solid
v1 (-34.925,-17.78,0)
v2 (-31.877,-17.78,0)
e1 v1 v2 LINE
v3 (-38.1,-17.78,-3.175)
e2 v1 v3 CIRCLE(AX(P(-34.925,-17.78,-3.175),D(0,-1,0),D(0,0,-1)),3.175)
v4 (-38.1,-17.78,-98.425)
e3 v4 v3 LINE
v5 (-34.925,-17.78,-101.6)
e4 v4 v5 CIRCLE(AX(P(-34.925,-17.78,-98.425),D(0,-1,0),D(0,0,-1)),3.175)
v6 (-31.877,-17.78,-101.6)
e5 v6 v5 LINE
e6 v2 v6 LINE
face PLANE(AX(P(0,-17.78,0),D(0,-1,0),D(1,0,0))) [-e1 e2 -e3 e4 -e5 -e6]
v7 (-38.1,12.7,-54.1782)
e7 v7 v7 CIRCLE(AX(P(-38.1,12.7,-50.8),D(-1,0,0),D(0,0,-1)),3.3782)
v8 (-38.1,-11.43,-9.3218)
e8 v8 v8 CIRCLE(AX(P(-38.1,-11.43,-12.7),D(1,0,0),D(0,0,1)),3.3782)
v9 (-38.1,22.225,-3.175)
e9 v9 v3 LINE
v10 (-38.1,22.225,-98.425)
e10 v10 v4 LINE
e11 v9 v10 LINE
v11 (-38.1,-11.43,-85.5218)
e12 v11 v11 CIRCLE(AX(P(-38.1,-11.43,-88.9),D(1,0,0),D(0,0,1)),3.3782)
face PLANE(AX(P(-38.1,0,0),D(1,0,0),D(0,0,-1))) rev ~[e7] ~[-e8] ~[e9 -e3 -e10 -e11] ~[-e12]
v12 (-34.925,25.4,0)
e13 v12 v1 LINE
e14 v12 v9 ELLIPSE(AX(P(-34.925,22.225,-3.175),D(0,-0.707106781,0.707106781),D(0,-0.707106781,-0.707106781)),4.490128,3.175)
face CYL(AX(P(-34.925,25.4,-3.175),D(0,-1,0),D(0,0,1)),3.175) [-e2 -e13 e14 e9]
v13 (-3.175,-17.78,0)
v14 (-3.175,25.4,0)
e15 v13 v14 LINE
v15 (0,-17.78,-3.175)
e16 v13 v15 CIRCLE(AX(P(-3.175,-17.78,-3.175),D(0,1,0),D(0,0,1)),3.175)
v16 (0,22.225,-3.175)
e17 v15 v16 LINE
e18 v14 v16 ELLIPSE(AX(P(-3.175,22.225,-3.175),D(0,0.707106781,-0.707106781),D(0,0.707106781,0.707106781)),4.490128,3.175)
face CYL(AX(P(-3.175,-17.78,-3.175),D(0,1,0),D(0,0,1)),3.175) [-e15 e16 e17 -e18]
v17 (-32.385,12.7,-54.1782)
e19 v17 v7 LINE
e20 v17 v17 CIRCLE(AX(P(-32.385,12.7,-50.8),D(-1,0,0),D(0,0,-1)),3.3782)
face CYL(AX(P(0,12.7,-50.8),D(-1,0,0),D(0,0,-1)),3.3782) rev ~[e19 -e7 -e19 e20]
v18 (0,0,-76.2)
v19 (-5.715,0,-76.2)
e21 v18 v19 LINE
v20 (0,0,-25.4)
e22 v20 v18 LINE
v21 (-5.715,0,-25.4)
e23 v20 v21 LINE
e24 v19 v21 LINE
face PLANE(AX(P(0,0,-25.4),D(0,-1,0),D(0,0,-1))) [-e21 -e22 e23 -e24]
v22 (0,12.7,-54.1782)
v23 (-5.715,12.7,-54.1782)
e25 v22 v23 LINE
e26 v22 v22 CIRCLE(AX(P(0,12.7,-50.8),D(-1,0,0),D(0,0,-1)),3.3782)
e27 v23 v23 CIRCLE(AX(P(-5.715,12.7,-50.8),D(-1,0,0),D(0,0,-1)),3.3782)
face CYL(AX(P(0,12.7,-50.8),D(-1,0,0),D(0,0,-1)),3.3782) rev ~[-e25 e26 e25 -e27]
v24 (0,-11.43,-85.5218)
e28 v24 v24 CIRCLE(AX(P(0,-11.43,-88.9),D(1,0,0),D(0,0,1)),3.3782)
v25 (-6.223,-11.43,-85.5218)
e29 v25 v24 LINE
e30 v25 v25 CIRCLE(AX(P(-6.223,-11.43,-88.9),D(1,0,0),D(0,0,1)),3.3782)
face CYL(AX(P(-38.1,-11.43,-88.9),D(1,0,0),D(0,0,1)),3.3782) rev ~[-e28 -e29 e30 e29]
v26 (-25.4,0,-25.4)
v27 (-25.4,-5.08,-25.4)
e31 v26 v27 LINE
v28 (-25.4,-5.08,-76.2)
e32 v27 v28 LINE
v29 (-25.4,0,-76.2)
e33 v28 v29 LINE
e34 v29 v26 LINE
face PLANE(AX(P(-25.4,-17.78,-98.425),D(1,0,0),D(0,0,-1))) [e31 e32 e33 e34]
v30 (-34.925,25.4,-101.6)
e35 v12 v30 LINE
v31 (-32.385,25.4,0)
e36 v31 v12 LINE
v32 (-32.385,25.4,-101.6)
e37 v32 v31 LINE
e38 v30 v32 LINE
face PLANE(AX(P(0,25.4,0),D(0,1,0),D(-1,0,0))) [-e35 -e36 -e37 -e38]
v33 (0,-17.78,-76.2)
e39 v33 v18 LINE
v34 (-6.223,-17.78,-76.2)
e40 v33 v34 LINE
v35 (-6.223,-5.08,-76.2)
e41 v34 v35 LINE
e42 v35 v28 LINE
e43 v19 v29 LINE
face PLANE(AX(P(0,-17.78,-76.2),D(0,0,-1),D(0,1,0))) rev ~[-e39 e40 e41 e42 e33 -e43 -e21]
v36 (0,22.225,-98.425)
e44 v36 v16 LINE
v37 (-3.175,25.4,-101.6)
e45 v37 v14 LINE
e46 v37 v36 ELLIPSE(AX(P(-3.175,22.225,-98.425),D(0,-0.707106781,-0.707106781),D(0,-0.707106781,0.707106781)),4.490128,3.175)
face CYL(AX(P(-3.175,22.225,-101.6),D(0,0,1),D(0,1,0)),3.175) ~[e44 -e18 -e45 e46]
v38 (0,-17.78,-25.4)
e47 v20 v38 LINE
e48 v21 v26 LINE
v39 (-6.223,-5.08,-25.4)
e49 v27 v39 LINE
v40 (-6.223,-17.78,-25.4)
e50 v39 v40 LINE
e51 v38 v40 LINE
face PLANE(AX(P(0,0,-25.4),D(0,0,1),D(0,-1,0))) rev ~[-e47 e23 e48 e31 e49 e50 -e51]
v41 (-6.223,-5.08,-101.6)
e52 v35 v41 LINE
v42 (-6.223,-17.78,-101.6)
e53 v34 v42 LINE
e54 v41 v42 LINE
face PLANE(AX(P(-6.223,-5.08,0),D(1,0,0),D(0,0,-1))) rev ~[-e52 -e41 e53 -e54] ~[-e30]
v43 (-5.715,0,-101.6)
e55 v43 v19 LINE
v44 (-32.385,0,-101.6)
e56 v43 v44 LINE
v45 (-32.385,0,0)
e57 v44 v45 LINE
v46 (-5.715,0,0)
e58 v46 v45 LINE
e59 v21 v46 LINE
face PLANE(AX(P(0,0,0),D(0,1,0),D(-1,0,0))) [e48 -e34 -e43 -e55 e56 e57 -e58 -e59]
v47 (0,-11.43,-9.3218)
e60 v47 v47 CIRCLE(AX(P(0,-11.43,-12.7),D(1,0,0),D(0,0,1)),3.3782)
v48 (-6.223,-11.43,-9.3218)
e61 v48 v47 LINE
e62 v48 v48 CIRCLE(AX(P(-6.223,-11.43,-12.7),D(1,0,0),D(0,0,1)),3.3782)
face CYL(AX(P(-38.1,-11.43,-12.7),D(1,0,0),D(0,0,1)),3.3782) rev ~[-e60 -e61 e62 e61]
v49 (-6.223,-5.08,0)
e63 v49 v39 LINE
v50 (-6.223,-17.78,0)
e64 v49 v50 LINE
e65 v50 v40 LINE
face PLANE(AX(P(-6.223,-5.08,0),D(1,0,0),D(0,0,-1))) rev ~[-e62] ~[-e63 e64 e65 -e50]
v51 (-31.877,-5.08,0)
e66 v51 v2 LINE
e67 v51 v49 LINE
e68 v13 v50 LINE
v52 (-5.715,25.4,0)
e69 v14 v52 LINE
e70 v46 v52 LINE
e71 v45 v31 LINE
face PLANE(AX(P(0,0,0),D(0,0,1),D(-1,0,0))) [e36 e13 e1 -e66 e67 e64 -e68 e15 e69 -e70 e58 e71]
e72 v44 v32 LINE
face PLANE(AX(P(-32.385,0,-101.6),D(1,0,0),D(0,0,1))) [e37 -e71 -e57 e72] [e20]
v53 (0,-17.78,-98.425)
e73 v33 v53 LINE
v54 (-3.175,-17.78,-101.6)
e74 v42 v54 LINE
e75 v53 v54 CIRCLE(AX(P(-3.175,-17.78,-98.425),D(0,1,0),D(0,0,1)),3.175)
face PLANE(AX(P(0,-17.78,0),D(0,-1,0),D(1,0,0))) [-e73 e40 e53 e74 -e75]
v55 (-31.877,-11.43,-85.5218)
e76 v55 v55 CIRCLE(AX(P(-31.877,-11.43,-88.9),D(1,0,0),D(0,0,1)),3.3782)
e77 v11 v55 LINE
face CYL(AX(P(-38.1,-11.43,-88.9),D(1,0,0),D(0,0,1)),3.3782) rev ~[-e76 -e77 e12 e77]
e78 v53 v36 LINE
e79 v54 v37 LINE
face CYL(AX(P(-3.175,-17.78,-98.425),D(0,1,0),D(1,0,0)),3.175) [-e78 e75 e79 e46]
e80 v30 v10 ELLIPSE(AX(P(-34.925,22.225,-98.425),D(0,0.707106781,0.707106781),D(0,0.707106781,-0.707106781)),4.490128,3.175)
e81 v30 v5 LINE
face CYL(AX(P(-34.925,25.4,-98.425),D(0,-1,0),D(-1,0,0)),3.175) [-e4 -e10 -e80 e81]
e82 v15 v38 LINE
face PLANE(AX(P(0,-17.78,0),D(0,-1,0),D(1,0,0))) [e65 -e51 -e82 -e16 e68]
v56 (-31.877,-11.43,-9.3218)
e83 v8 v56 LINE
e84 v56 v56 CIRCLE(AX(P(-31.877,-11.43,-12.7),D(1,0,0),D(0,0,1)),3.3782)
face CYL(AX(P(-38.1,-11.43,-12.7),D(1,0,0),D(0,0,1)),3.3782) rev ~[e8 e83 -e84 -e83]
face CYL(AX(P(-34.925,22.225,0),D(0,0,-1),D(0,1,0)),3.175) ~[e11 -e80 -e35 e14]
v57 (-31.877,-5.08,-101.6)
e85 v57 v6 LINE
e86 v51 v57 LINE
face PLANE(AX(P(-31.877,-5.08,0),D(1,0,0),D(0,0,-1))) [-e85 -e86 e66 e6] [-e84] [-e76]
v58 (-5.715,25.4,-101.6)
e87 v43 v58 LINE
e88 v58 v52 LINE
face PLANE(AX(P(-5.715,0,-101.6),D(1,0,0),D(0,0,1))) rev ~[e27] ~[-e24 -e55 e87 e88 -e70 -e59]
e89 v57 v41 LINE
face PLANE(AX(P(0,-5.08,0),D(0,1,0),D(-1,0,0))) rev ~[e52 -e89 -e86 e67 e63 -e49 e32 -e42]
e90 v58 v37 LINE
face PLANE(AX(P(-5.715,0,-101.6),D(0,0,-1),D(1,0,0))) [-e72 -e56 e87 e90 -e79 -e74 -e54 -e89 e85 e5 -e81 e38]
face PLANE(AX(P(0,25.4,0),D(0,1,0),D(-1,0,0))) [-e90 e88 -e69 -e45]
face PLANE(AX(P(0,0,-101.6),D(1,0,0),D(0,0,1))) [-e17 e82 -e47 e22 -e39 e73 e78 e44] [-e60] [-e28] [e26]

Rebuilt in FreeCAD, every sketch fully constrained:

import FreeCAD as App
import Part
import Sketcher

V = App.Vector
Q = App.Units.Quantity


def edges_at(feature, points):
    """Names of the edges that pass closest to the given points."""
    edges = feature.Shape.Edges
    near = lambda p: min(range(len(edges)), key=lambda i: edges[i].distToShape(Part.Vertex(*p))[0])
    return sorted({f"Edge{near(p) + 1}" for p in points})


def add_polygon(sketch, points):
    """Adds a closed chain of lines whose ends are joined by coincident constraints."""
    first, n = sketch.GeometryCount, len(points)
    for a, b in zip(points, points[1:] + points[:1]):
        sketch.addGeometry(Part.LineSegment(App.Vector(*a, 0), App.Vector(*b, 0)), False)
    for i in range(n):
        sketch.addConstraint(Sketcher.Constraint("Coincident", first + i, 2, first + (i + 1) % n, 1))

doc = App.newDocument("Part")
body = doc.addObject("PartDesign::Body", "Body")
body.AllowCompound = True

# Sketch on XZ plane
sketch1 = body.newObject("Sketcher::SketchObject", "Sketch")
sketch1.AttachmentSupport = (doc.getObject("XZ_Plane"), [""])
sketch1.MapMode = "FlatFace"
add_polygon(sketch1, [(-6, 0), (0, 0), (0, -102), (-6, -102)])  # lines 0-3
add_polygon(sketch1, [(-38, 0), (-32, 0), (-32, -102), (-38, -102)])  # lines 4-7
sketch1.addConstraint([
    Sketcher.Constraint("Horizontal", 0),
    Sketcher.Constraint("Vertical", 1),
    Sketcher.Constraint("Horizontal", 2),
    Sketcher.Constraint("Vertical", 3),
    Sketcher.Constraint("Horizontal", 4),
    Sketcher.Constraint("Vertical", 5),
    Sketcher.Constraint("Horizontal", 6),
    Sketcher.Constraint("Vertical", 7),
    Sketcher.Constraint("Coincident", 0, 2, -1, 1),
    Sketcher.Constraint("PointOnObject", 4, 2, -1),
    Sketcher.Constraint("Horizontal", 2, 2, 5, 2),
    Sketcher.Constraint("Equal", 2, 4),
    Sketcher.Constraint("DistanceY", 1, 2, 1, 1, Q("4 in")),
    Sketcher.Constraint("DistanceX", 6, 2, -1, 1, Q("1.5 in")),
    Sketcher.Constraint("DistanceX", 0, 1, 0, 2, Q("0.225 in")),
])
pad1 = body.newObject("PartDesign::Pad", "Pad")
pad1.Profile = sketch1
pad1.Length = Q("1 in")
pad1.Reversed = True

# Sketch on XZ plane
sketch2 = body.newObject("Sketcher::SketchObject", "Sketch001")
sketch2.AttachmentSupport = (doc.getObject("XZ_Plane"), [""])
sketch2.MapMode = "FlatFace"
add_polygon(sketch2, [(0, 0), (0, -102), (-38, -102), (-38, 0)])  # lines 0-3
sketch2.addConstraint([
    Sketcher.Constraint("Vertical", 0),
    Sketcher.Constraint("Horizontal", 1),
    Sketcher.Constraint("Vertical", 2),
    Sketcher.Constraint("Horizontal", 3),
    Sketcher.Constraint("Coincident", 3, 2, -1, 1),
    Sketcher.Constraint("DistanceY", 0, 2, 0, 1, Q("4 in")),
    Sketcher.Constraint("DistanceX", 1, 2, 1, 1, Q("1.5 in")),
])
pad2 = body.newObject("PartDesign::Pad", "Pad001")
pad2.Profile = sketch2
pad2.Length = Q("0.2 in")

# Sketch on YZ plane
sketch3 = body.newObject("Sketcher::SketchObject", "Sketch002")
sketch3.AttachmentSupport = (doc.getObject("YZ_Plane"), [""])
sketch3.MapMode = "FlatFace"
sketch3.addGeometry(Part.Circle(V(12.7, -50.8, 0), V(0, 0, 1), 3.4), False)
sketch3.addConstraint([
    Sketcher.Constraint("Diameter", 0, Q("0.266 in")),
    Sketcher.Constraint("DistanceY", 0, 3, -1, 1, Q("2 in")),
    Sketcher.Constraint("DistanceX", -1, 1, 0, 3, Q("0.5 in")),
])
doc.recompute()
hole = body.newObject("PartDesign::Hole", "Hole")
hole.Profile = sketch3
hole.ThreadType = "None"
hole.Diameter = Q("0.266 in")
hole.DepthType = "ThroughAll"

# Sketch on XZ plane
sketch4 = body.newObject("Sketcher::SketchObject", "Sketch003")
sketch4.AttachmentSupport = (doc.getObject("XZ_Plane"), [""])
sketch4.MapMode = "FlatFace"
sketch4.AttachmentOffset = App.Placement(V(0, 0, 0.2 * 25.4), App.Rotation())
add_polygon(sketch4, [(0, -102), (0, 0), (-6, 0), (-6, -102)])  # lines 0-3
add_polygon(sketch4, [(-38, 0), (-38, -102), (-32, -102), (-32, 0)])  # lines 4-7
sketch4.addConstraint([
    Sketcher.Constraint("Vertical", 0),
    Sketcher.Constraint("Horizontal", 1),
    Sketcher.Constraint("Vertical", 2),
    Sketcher.Constraint("Horizontal", 3),
    Sketcher.Constraint("Vertical", 4),
    Sketcher.Constraint("Horizontal", 5),
    Sketcher.Constraint("Vertical", 6),
    Sketcher.Constraint("Horizontal", 7),
    Sketcher.Constraint("Coincident", 0, 2, -1, 1),
    Sketcher.Constraint("PointOnObject", 6, 2, -1),
    Sketcher.Constraint("Horizontal", 3, 2, 4, 2),
    Sketcher.Constraint("Equal", 3, 5),
    Sketcher.Constraint("DistanceY", 0, 1, 0, 2, Q("4 in")),
    Sketcher.Constraint("DistanceX", 1, 2, 1, 1, Q("0.245 in")),
    Sketcher.Constraint("DistanceX", 4, 2, -1, 1, Q("1.5 in")),
])
pad3 = body.newObject("PartDesign::Pad", "Pad002")
pad3.Profile = sketch4
pad3.Length = Q("0.5 in")

# Sketch on YZ plane
sketch5 = body.newObject("Sketcher::SketchObject", "Sketch004")
sketch5.AttachmentSupport = (doc.getObject("YZ_Plane"), [""])
sketch5.MapMode = "FlatFace"
sketch5.AttachmentOffset = App.Placement(V(0, 0, -1.5 * 25.4), App.Rotation())
sketch5.addGeometry([
    Part.Circle(V(-11.4, -12.7, 0), V(0, 0, 1), 3.4),
    Part.Circle(V(-11.4, -88.9, 0), V(0, 0, 1), 3.4),
], False)
sketch5.addConstraint([
    Sketcher.Constraint("Equal", 0, 1),
    Sketcher.Constraint("Vertical", 0, 3, 1, 3),
    Sketcher.Constraint("Diameter", 0, Q("0.266 in")),
    Sketcher.Constraint("DistanceY", 1, 3, 0, 3, Q("3 in")),
    Sketcher.Constraint("DistanceY", 0, 3, -1, 1, Q("0.5 in")),
    Sketcher.Constraint("DistanceX", 0, 3, -1, 1, Q("0.45 in")),
])
doc.recompute()
hole2 = body.newObject("PartDesign::Hole", "Hole001")
hole2.Profile = sketch5
hole2.ThreadType = "None"
hole2.Diameter = Q("0.266 in")
hole2.DepthType = "ThroughAll"
hole2.Reversed = True
doc.recompute()

fillet = body.newObject("PartDesign::Fillet", "Fillet")
fillet.Base = (hole2, edges_at(hole2, [
    (-38.1, 3.81, 0),
    (-38.1, 25.4, -50.8),
    (0, 3.81, 0),
    (0, 25.4, -50.8),
    (0, 3.81, -101.6),
    (-38.1, 3.81, -101.6),
]))
fillet.Radius = Q("0.125 in")

# Sketch on YZ plane
sketch6 = body.newObject("Sketcher::SketchObject", "Sketch005")
sketch6.AttachmentSupport = (doc.getObject("YZ_Plane"), [""])
sketch6.MapMode = "FlatFace"
add_polygon(sketch6, [(0, -25), (-18, -25), (-18, -76), (0, -76)])  # lines 0-3
sketch6.addConstraint([
    Sketcher.Constraint("Horizontal", 0),
    Sketcher.Constraint("Vertical", 1),
    Sketcher.Constraint("Horizontal", 2),
    Sketcher.Constraint("Vertical", 3),
    Sketcher.Constraint("PointOnObject", 2, 2, -2),
    Sketcher.Constraint("DistanceY", 1, 2, 1, 1, Q("2 in")),
    Sketcher.Constraint("DistanceX", 0, 2, 0, 1, Q("0.7 in")),
    Sketcher.Constraint("DistanceY", 0, 2, -1, 1, Q("1 in")),
])
pocket1 = body.newObject("PartDesign::Pocket", "Pocket")
pocket1.Profile = sketch6
pocket1.Length = Q("1 in")

doc.recompute()
